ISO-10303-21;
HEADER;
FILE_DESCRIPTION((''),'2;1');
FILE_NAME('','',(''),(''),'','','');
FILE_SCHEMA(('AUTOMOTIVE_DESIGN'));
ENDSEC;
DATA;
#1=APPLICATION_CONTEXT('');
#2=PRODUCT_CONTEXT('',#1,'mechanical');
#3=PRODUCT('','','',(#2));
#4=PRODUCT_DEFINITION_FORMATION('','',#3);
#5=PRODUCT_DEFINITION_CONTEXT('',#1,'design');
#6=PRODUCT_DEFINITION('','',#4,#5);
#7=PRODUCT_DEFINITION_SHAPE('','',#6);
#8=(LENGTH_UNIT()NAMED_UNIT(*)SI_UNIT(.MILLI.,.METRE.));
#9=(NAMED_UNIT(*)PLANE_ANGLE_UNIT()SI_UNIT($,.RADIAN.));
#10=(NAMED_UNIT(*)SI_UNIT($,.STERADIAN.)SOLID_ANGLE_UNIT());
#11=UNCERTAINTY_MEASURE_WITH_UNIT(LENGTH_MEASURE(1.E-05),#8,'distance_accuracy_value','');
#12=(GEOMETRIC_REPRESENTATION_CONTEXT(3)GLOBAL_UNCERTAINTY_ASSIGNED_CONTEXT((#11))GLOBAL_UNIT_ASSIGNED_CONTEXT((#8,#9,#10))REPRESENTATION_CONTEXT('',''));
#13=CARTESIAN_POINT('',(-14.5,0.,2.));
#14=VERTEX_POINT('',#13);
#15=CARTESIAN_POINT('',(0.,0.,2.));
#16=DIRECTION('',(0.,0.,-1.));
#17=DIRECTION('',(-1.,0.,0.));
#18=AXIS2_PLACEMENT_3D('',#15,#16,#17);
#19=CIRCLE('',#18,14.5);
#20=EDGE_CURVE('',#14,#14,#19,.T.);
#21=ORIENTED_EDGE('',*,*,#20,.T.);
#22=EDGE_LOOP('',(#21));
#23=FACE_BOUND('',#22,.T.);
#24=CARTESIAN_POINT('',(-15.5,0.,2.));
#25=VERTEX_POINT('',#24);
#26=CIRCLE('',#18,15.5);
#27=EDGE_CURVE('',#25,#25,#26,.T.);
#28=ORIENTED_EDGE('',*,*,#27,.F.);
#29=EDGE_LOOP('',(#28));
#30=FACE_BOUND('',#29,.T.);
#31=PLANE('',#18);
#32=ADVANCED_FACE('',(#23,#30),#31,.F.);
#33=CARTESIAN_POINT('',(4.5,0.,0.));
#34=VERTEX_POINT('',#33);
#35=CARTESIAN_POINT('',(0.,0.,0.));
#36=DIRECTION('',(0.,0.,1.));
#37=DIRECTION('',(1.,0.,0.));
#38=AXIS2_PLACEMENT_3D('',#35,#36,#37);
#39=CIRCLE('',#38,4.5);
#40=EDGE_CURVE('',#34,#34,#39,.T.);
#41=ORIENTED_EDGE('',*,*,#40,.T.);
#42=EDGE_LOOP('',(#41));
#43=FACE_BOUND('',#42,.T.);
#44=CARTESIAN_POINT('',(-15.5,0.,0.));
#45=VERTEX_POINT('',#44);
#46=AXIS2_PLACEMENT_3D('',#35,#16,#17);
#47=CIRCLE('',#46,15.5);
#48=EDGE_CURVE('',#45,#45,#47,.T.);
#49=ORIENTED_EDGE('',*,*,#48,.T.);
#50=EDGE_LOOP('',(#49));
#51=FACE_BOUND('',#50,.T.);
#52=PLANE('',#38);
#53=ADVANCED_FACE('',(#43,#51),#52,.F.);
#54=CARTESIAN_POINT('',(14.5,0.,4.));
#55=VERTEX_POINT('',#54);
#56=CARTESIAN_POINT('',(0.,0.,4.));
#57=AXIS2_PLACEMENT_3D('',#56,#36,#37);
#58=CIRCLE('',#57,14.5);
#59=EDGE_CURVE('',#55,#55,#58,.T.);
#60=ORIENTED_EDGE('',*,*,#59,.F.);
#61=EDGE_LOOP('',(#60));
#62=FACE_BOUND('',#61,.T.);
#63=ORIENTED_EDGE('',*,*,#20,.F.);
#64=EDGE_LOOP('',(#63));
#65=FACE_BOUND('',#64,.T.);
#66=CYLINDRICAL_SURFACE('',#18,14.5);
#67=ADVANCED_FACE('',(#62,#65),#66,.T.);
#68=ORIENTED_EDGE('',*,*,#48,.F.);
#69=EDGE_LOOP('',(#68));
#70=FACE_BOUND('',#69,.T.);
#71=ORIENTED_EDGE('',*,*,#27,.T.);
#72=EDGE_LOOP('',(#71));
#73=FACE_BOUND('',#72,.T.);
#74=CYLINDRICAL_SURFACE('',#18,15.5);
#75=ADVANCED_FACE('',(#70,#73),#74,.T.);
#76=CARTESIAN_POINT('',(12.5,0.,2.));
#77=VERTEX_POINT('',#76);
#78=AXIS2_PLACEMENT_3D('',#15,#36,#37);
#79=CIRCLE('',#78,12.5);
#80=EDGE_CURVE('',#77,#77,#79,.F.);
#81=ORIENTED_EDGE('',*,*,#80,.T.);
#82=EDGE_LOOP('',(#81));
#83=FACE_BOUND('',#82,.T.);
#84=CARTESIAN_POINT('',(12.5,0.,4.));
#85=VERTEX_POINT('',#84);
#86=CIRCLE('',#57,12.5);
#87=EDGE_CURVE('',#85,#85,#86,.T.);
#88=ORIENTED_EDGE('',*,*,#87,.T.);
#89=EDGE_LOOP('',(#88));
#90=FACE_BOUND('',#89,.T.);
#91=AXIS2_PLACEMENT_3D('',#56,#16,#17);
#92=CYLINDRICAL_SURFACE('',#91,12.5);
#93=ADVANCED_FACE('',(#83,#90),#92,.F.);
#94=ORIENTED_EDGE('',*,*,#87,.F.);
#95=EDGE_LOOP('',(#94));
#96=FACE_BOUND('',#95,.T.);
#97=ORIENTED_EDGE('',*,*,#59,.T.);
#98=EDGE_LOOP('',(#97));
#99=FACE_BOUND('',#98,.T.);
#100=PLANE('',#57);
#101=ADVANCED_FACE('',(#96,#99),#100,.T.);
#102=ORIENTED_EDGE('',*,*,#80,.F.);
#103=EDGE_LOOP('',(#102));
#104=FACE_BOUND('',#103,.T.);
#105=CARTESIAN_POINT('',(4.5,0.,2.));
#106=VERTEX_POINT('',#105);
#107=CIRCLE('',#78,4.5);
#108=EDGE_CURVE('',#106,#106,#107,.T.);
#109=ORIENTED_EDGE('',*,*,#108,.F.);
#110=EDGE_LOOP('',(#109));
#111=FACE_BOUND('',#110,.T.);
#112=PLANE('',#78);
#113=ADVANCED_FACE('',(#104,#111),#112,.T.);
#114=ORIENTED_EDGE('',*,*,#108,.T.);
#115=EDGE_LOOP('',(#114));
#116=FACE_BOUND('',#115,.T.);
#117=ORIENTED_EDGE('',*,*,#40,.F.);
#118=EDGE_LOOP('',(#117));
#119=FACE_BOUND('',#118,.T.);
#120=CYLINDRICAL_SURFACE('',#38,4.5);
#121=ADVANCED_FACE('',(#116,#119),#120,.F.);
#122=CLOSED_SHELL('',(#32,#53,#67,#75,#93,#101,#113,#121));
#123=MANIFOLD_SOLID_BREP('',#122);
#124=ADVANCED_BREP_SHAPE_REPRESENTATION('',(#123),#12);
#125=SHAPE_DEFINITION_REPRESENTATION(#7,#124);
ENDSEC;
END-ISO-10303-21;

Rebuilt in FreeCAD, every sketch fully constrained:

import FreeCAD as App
import Part
import Sketcher

doc = App.newDocument("Part")
body = doc.addObject("PartDesign::Body", "Body")

# Sketch on XY plane
sketch1 = doc.addObject("Sketcher::SketchObject", "Sketch")
body.addObject(sketch1)
sketch1.AttachmentSupport = (doc.XY_Plane, [""])
sketch1.MapMode = "FlatFace"
sketch1.addGeometry(Part.Circle(App.Vector(0, 0, 0), App.Vector(0, 0, 1), 14.5), False)
sketch1.addConstraint([
    Sketcher.Constraint("Coincident", 0, 3, -1, 1),
    Sketcher.Constraint("Diameter", 0, 29.0),
])
pad1 = doc.addObject("PartDesign::Pad", "Pad")
body.addObject(pad1)
pad1.Profile = sketch1
pad1.Length = 2

# Sketch on XY plane
sketch2 = doc.addObject("Sketcher::SketchObject", "Sketch001")
body.addObject(sketch2)
sketch2.AttachmentSupport = (doc.XY_Plane, [""])
sketch2.MapMode = "FlatFace"
sketch2.AttachmentOffset = App.Placement(App.Vector(0, 0, 2), App.Rotation())
sketch2.addGeometry([
    Part.Circle(App.Vector(0, 0, 0), App.Vector(0, 0, 1), 14.5),
    Part.Circle(App.Vector(0, 0, 0), App.Vector(0, 0, 1), 12.5),
], False)
sketch2.addConstraint([
    Sketcher.Constraint("Coincident", 0, 3, -1, 1),
    Sketcher.Constraint("Coincident", 1, 3, -1, 1),
    Sketcher.Constraint("Diameter", 0, 29.0),
    Sketcher.Constraint("Diameter", 1, 25.0),
])
pad2 = doc.addObject("PartDesign::Pad", "Pad001")
body.addObject(pad2)
pad2.Profile = sketch2
pad2.Length = 2

# Sketch on XY plane
sketch3 = doc.addObject("Sketcher::SketchObject", "Sketch002")
body.addObject(sketch3)
sketch3.AttachmentSupport = (doc.XY_Plane, [""])
sketch3.MapMode = "FlatFace"
sketch3.AttachmentOffset = App.Placement(App.Vector(0, 0, 2), App.Rotation())
sketch3.addGeometry(Part.Circle(App.Vector(0, 0, 0), App.Vector(0, 0, 1), 4.5), False)
sketch3.addConstraint([
    Sketcher.Constraint("Coincident", 0, 3, -1, 1),
    Sketcher.Constraint("Diameter", 0, 9.0),
])
pocket1 = doc.addObject("PartDesign::Pocket", "Pocket")
body.addObject(pocket1)
pocket1.Profile = sketch3
pocket1.Length = 2

# Sketch on XY plane
sketch4 = doc.addObject("Sketcher::SketchObject", "Sketch003")
body.addObject(sketch4)
sketch4.AttachmentSupport = (doc.XY_Plane, [""])
sketch4.MapMode = "FlatFace"
sketch4.addGeometry([
    Part.Circle(App.Vector(0, 0, 0), App.Vector(0, 0, 1), 15.5),
    Part.Circle(App.Vector(0, 0, 0), App.Vector(0, 0, 1), 14.5),
], False)
sketch4.addConstraint([
    Sketcher.Constraint("Coincident", 0, 3, -1, 1),
    Sketcher.Constraint("Coincident", 1, 3, -1, 1),
    Sketcher.Constraint("Diameter", 0, 31.0),
    Sketcher.Constraint("Diameter", 1, 29.0),
])
pad3 = doc.addObject("PartDesign::Pad", "Pad002")
body.addObject(pad3)
pad3.Profile = sketch4
pad3.Length = 2

doc.recompute()
